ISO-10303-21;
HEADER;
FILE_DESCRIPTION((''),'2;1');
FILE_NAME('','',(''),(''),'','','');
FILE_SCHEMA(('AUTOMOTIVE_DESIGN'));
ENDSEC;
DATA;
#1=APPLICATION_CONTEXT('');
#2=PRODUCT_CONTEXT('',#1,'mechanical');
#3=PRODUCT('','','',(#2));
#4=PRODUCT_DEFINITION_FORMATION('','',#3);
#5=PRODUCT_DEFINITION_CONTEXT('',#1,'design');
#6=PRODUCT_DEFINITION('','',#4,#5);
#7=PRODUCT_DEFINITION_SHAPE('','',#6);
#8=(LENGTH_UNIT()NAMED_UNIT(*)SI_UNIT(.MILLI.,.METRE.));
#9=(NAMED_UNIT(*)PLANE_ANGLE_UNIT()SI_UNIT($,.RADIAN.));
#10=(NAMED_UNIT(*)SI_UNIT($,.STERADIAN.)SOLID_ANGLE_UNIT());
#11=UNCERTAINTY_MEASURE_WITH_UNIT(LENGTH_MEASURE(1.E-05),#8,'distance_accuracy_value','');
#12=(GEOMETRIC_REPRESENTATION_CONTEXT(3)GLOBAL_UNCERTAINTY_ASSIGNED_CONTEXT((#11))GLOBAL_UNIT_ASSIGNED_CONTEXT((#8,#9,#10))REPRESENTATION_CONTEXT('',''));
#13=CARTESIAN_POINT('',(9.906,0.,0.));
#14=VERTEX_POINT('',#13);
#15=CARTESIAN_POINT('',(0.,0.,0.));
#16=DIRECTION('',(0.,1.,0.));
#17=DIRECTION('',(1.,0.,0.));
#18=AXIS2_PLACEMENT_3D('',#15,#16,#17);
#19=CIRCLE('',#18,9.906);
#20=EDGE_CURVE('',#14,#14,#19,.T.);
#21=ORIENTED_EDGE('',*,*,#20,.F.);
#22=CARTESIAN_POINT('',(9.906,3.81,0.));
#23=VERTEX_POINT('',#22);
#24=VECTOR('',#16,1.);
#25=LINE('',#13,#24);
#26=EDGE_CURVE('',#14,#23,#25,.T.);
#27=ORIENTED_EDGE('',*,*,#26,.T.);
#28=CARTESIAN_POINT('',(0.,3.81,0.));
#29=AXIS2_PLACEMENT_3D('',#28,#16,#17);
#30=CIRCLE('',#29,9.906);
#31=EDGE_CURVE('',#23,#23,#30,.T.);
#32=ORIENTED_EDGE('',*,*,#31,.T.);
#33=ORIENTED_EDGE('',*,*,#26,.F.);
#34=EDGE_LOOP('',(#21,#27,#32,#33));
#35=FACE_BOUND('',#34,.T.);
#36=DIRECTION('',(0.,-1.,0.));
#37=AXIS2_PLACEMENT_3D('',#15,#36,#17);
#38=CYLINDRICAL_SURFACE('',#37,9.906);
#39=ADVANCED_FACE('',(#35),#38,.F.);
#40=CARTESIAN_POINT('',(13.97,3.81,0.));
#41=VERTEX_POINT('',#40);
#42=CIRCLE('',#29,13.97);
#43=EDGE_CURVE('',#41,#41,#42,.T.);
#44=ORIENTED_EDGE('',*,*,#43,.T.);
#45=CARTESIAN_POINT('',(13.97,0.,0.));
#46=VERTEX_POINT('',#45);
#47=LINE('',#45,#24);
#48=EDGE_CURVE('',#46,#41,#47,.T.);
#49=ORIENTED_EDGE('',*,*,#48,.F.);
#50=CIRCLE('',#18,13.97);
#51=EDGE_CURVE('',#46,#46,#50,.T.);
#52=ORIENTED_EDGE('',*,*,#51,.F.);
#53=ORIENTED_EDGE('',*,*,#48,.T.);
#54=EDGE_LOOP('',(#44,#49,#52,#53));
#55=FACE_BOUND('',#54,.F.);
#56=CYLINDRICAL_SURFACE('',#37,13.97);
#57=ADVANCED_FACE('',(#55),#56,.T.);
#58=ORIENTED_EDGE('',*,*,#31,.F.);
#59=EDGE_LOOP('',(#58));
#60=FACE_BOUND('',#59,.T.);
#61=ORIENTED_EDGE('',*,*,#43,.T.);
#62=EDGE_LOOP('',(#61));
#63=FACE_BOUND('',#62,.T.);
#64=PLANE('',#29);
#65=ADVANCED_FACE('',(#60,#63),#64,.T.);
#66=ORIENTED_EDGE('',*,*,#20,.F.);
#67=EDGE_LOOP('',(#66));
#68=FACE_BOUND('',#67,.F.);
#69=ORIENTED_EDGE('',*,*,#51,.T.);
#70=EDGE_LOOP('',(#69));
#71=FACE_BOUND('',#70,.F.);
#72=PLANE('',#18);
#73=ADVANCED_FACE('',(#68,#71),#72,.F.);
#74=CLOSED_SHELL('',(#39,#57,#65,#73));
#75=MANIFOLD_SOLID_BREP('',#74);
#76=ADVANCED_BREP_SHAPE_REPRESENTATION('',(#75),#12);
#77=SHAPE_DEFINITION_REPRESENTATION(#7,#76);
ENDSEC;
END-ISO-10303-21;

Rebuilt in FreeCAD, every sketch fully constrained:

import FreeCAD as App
import Part
import Sketcher
Q = App.Units.Quantity

doc = App.newDocument("Part")
body = doc.addObject("PartDesign::Body", "Body")

# Sketch on XZ plane
sketch1 = doc.addObject("Sketcher::SketchObject", "Sketch")
body.addObject(sketch1)
sketch1.AttachmentSupport = (doc.XZ_Plane, [""])
sketch1.MapMode = "FlatFace"
sketch1.addGeometry(Part.Circle(App.Vector(0, 0, 0), App.Vector(0, 0, 1), 14), False)
sketch1.addGeometry(Part.Circle(App.Vector(0, 0, 0), App.Vector(0, 0, 1), 10), False)
sketch1.addConstraint(Sketcher.Constraint("Coincident", 0, 3, -1, 1))
sketch1.addConstraint(Sketcher.Constraint("Coincident", 1, 3, -1, 1))
sketch1.addConstraint(Sketcher.Constraint("Diameter", 0, Q("1.1 in")))
sketch1.addConstraint(Sketcher.Constraint("Diameter", 1, Q("0.78 in")))
pad1 = doc.addObject("PartDesign::Pad", "Pad")
body.addObject(pad1)
pad1.Profile = sketch1
pad1.Length = Q("0.15 in")
pad1.Reversed = True

doc.recompute()
